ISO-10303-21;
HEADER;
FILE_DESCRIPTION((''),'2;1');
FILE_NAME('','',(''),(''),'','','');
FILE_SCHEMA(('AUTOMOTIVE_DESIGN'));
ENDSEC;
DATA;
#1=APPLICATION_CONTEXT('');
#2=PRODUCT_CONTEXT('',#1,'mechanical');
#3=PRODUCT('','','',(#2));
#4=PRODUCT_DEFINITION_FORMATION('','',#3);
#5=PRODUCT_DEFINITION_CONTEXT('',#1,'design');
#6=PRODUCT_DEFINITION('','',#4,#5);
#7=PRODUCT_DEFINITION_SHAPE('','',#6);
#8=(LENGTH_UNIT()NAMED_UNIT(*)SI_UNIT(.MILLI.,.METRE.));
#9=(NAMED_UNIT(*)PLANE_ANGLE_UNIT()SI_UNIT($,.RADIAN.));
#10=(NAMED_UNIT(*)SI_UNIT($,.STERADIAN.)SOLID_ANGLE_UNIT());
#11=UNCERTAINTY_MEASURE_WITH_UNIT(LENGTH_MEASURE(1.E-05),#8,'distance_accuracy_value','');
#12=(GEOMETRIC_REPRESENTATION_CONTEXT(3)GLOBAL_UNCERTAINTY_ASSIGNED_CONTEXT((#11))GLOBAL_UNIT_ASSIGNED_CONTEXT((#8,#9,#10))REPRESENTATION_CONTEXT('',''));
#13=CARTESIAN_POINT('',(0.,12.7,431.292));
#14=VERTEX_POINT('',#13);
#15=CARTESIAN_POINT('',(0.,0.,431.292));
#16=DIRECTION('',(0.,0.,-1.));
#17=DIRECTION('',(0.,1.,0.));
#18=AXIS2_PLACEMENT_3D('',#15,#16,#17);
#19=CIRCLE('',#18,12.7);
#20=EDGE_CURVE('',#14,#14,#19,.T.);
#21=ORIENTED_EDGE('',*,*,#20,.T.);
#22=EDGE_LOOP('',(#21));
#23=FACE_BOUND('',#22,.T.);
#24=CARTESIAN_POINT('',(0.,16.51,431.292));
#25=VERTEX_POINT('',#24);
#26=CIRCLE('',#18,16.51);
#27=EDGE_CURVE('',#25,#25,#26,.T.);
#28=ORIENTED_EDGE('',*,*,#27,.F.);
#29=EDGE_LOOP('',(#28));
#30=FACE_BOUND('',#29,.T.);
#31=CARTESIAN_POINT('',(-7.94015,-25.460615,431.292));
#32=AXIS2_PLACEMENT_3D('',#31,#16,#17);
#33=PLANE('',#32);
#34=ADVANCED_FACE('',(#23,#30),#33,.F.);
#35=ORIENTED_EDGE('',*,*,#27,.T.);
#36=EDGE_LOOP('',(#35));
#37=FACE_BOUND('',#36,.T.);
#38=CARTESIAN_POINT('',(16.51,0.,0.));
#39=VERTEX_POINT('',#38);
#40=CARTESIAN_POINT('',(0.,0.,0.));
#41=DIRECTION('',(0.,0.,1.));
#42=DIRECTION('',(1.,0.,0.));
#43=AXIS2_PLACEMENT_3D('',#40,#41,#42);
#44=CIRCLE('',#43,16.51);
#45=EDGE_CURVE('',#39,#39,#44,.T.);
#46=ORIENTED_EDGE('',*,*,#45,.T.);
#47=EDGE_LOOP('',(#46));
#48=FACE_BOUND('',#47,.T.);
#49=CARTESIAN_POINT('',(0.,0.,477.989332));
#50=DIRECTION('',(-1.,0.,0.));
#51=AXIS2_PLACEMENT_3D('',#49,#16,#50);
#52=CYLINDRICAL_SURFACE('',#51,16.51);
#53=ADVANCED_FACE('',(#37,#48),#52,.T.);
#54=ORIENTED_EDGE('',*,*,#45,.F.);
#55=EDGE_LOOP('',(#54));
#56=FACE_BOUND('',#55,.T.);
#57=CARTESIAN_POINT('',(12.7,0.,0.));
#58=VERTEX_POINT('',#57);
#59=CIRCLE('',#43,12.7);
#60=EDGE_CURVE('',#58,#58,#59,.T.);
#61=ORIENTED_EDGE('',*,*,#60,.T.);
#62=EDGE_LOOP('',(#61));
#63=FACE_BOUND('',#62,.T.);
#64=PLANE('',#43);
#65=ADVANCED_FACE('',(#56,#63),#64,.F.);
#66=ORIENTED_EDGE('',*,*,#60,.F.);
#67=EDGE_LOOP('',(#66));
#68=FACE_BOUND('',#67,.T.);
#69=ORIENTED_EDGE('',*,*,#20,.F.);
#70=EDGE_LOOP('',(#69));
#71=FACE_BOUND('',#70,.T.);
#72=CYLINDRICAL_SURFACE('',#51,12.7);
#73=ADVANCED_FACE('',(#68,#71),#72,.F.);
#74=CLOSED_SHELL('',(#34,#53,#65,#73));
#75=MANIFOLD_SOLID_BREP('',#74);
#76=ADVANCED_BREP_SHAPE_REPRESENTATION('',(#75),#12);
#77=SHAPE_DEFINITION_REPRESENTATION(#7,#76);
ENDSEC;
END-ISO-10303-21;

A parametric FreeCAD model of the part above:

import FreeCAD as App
import Part
import Sketcher
from FreeCAD import Vector
Q = App.Units.Quantity

doc = App.newDocument("Part")
params = doc.addObject("Spreadsheet::Sheet", "Params")
for row, (alias, value) in enumerate([
    ("sketch1_diameter", "1 in"),
    ("sketch1_diameter2", "1.3 in"),
    ("pad1_length", "16.98 in"),
], start=1):
    params.set(f"A{row}", alias)
    params.set(f"B{row}", "=" + value)
    params.setAlias(f"B{row}", alias)

body = doc.addObject("PartDesign::Body", "Body")

sketch1 = doc.addObject("Sketcher::SketchObject", "Sketch")
body.addObject(sketch1)
sketch1.AttachmentSupport = (doc.XY_Plane, [""])
sketch1.MapMode = "FlatFace"
sketch1.addGeometry([
    Part.Circle(Vector(0, 0, 0), Vector(0, 0, 1), 17),
    Part.Circle(Vector(0, 0, 0), Vector(0, 0, 1), 13),
], False)
sketch1.addConstraint([
    Sketcher.Constraint("Coincident", 0, 3, -1, 1),
    Sketcher.Constraint("Coincident", 1, 3, -1, 1),
    Sketcher.Constraint("Diameter", 1, Q("1 in")),
    Sketcher.Constraint("Diameter", 0, Q("1.3 in")),
])
sketch1.setExpression("Constraints[2]", "Params.sketch1_diameter")
sketch1.setExpression("Constraints[3]", "Params.sketch1_diameter2")
pad1 = doc.addObject("PartDesign::Pad", "Pad")
body.addObject(pad1)
pad1.Profile = sketch1
pad1.setExpression("Length", "Params.pad1_length")

doc.recompute()
